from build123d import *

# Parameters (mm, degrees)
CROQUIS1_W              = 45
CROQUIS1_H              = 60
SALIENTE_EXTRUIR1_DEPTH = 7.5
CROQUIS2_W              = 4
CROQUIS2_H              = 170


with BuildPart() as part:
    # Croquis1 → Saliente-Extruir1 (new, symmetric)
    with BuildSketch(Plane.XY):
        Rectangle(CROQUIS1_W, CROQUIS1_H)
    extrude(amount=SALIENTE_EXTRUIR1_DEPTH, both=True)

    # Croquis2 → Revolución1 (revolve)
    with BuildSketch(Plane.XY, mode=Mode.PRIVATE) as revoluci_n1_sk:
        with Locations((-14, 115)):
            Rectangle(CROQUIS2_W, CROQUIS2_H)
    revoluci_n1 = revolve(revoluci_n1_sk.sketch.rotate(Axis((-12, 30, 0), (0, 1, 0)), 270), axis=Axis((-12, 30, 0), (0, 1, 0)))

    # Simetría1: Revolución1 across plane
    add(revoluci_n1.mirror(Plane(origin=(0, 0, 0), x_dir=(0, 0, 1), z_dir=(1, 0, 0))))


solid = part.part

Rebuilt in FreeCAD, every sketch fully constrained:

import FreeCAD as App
import Part
import Sketcher


def add_polygon(sketch, points):
    """Adds a closed chain of lines whose ends are joined by coincident constraints."""
    first, n = sketch.GeometryCount, len(points)
    for a, b in zip(points, points[1:] + points[:1]):
        sketch.addGeometry(Part.LineSegment(App.Vector(*a, 0), App.Vector(*b, 0)), False)
    for i in range(n):
        sketch.addConstraint(Sketcher.Constraint("Coincident", first + i, 2, first + (i + 1) % n, 1))

doc = App.newDocument("Part")
body = doc.addObject("PartDesign::Body", "Body")

# Sketch on XY plane
sketch1 = doc.addObject("Sketcher::SketchObject", "Sketch")
body.addObject(sketch1)
sketch1.AttachmentSupport = (doc.XY_Plane, [""])
sketch1.MapMode = "FlatFace"
add_polygon(sketch1, [(-22.5, 30), (-22.5, -30), (22.5, -30), (22.5, 30)])  # lines 0-3
sketch1.addConstraint([
    Sketcher.Constraint("Vertical", 0),
    Sketcher.Constraint("Horizontal", 1),
    Sketcher.Constraint("Vertical", 2),
    Sketcher.Constraint("Horizontal", 3),
    Sketcher.Constraint("Symmetric", 0, 2, 2, 2, -1, 1),
    Sketcher.Constraint("DistanceX", 1, 1, 1, 2, 45.0),
    Sketcher.Constraint("DistanceY", 0, 2, 0, 1, 60.0),
])
pad1 = doc.addObject("PartDesign::Pad", "Pad")
body.addObject(pad1)
pad1.Profile = sketch1
pad1.Length = 15
pad1.Midplane = True

# Sketch on XY plane
sketch2 = doc.addObject("Sketcher::SketchObject", "Sketch001")
body.addObject(sketch2)
sketch2.AttachmentSupport = (doc.XY_Plane, [""])
sketch2.MapMode = "FlatFace"
add_polygon(sketch2, [(-16, 200), (-16, 30), (-12, 30), (-12, 200)])  # lines 0-3
sketch2.addGeometry(Part.LineSegment(App.Vector(-12, 30, 0), App.Vector(-12, 200, 0)), True)  # axis
sketch2.addConstraint([
    Sketcher.Constraint("Vertical", 0),
    Sketcher.Constraint("Horizontal", 1),
    Sketcher.Constraint("Vertical", 2),
    Sketcher.Constraint("Horizontal", 3),
    Sketcher.Constraint("Vertical", 4),
    Sketcher.Constraint("Coincident", 4, 1, 1, 2),
    Sketcher.Constraint("Horizontal", 3, 2, 4, 2),
    Sketcher.Constraint("DistanceX", 1, 1, 1, 2, 4.0),
    Sketcher.Constraint("DistanceY", 0, 2, 0, 1, 170.0),
    Sketcher.Constraint("DistanceX", 0, 2, -1, 1, 16.0),
    Sketcher.Constraint("DistanceY", -1, 1, 0, 2, 30.0),
])
revolution = doc.addObject("PartDesign::Revolution", "Revolution")
body.addObject(revolution)
revolution.Profile = sketch2
revolution.ReferenceAxis = (sketch2, ["Axis0"])
revolution.Angle = 360
doc.recompute()

mirrored = doc.addObject("PartDesign::Mirrored", "Mirrored")
body.addObject(mirrored)
mirrored.Originals = [revolution]
mirrored.MirrorPlane = (doc.YZ_Plane, [""])
body.Tip = mirrored

doc.recompute()
